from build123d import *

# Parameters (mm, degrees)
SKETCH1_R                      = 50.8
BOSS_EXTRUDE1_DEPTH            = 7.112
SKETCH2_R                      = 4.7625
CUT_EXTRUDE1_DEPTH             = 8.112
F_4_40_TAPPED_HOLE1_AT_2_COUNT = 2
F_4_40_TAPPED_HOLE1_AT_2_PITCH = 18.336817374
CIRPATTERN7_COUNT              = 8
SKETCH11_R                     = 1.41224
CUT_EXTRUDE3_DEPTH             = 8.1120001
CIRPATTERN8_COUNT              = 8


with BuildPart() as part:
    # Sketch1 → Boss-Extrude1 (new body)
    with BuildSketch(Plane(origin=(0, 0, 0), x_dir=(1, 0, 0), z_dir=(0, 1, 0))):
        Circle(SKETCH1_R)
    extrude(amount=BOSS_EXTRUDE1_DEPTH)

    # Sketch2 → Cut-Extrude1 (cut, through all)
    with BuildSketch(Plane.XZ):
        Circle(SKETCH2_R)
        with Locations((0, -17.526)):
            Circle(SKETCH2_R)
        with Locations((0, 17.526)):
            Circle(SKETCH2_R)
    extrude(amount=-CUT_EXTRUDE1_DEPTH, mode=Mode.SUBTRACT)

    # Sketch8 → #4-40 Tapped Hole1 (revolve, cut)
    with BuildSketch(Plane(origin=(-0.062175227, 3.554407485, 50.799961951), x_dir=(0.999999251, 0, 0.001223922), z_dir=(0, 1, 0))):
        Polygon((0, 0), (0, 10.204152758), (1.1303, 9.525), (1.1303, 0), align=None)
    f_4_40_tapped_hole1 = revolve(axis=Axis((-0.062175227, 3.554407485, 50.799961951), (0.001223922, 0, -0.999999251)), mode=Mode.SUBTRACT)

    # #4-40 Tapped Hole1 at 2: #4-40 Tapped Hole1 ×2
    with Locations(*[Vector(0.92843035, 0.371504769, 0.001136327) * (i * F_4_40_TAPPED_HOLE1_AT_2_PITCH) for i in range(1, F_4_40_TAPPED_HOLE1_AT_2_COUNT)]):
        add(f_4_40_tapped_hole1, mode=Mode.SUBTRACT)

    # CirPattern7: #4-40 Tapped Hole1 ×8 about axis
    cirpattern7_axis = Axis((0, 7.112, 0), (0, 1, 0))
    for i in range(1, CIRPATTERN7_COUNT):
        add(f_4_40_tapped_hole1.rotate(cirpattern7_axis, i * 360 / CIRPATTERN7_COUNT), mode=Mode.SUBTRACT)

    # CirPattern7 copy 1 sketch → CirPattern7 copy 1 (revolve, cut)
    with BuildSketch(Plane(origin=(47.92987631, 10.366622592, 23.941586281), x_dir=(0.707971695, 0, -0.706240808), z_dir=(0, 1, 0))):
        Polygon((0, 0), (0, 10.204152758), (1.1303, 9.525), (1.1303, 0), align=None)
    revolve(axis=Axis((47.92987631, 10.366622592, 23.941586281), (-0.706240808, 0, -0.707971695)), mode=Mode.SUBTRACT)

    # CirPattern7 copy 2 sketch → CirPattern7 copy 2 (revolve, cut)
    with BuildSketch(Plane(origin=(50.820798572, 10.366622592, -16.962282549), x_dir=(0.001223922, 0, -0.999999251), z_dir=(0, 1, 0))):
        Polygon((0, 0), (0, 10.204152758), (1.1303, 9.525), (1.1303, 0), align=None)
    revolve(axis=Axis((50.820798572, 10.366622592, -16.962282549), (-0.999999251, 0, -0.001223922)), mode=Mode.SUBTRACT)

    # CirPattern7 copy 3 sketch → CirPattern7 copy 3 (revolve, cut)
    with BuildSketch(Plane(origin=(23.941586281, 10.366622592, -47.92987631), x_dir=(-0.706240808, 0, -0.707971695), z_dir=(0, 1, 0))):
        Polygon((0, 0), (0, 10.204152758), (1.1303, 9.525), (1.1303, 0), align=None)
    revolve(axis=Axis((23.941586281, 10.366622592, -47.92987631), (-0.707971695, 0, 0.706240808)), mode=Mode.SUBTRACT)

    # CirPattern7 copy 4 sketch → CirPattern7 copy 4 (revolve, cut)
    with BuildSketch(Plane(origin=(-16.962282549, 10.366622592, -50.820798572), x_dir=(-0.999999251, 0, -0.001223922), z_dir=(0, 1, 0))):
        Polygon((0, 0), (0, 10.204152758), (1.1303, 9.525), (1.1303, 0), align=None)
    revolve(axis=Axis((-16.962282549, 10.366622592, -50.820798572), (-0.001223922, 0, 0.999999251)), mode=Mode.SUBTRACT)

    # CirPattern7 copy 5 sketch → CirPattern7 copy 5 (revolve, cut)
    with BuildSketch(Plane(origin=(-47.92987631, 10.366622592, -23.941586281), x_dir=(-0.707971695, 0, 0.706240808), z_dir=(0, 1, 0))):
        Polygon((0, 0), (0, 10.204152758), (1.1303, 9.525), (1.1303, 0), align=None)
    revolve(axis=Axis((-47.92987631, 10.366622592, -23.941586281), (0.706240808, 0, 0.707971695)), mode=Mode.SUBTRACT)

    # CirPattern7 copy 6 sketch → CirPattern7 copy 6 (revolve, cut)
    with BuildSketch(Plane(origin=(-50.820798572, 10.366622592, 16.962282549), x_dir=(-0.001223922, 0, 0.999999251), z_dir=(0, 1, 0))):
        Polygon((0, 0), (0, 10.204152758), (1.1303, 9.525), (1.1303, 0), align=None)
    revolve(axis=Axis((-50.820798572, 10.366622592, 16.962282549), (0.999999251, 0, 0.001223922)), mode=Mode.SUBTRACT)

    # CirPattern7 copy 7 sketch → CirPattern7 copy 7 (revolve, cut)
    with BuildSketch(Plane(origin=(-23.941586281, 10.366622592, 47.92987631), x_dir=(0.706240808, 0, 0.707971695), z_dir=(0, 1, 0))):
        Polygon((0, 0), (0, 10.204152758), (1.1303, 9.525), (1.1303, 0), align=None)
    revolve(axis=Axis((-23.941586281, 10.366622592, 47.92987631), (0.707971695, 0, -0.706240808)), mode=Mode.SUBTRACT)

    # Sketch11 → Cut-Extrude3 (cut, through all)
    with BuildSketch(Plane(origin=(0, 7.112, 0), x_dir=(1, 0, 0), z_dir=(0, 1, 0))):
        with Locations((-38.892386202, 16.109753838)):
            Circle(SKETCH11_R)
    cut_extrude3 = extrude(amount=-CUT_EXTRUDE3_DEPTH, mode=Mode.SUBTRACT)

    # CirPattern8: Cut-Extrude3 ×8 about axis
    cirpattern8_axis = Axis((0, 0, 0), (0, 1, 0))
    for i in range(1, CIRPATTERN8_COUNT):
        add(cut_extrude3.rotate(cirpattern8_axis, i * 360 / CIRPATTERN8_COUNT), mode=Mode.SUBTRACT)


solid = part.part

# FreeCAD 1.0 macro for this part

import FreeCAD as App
import Part
import Sketcher
Q = App.Units.Quantity

doc = App.newDocument("Part")
body = doc.addObject("PartDesign::Body", "Body")

# Sketch on XZ plane
sketch1 = doc.addObject("Sketcher::SketchObject", "Sketch")
body.addObject(sketch1)
sketch1.AttachmentSupport = (doc.XZ_Plane, [""])
sketch1.MapMode = "FlatFace"
sketch1.addGeometry(Part.Circle(App.Vector(0, 0, 0), App.Vector(0, 0, 1), 51), False)
sketch1.addConstraint([
    Sketcher.Constraint("Coincident", 0, 3, -1, 1),
    Sketcher.Constraint("Diameter", 0, Q("4 in")),
])
pad1 = doc.addObject("PartDesign::Pad", "Pad")
body.addObject(pad1)
pad1.Profile = sketch1
pad1.Length = Q("0.28 in")
pad1.Reversed = True

# Sketch on XZ plane
sketch2 = doc.addObject("Sketcher::SketchObject", "Sketch001")
body.addObject(sketch2)
sketch2.AttachmentSupport = (doc.XZ_Plane, [""])
sketch2.MapMode = "FlatFace"
sketch2.addGeometry([
    Part.Circle(App.Vector(0, 0, 0), App.Vector(0, 0, 1), 4.8),
    Part.Circle(App.Vector(0, -17.5, 0), App.Vector(0, 0, 1), 4.8),
    Part.Circle(App.Vector(0, 17.5, 0), App.Vector(0, 0, 1), 4.8),
], False)
sketch2.addConstraint([
    Sketcher.Constraint("Coincident", 0, 3, -1, 1),
    Sketcher.Constraint("Equal", 0, 1),
    Sketcher.Constraint("Equal", 1, 2),
    Sketcher.Constraint("Symmetric", 1, 3, 2, 3, -1, 1),
    Sketcher.Constraint("PointOnObject", 1, 3, -2),
    Sketcher.Constraint("Diameter", 0, Q("0.375 in")),
    Sketcher.Constraint("DistanceY", 1, 3, -1, 1, Q("0.69 in")),
])
pocket1 = doc.addObject("PartDesign::Pocket", "Pocket")
body.addObject(pocket1)
pocket1.Profile = sketch2
pocket1.Type = "ThroughAll"

# Sketch on XZ plane
sketch3 = doc.addObject("Sketcher::SketchObject", "Sketch002")
body.addObject(sketch3)
sketch3.AttachmentSupport = (doc.XZ_Plane, [""])
sketch3.MapMode = "FlatFace"
sketch3.AttachmentOffset = App.Placement(App.Vector(0, 0, -3.554407), App.Rotation())
sketch3.addGeometry([
    Part.LineSegment(App.Vector(0, 40.6, 0), App.Vector(-0.1, 50.8, 0)),
    Part.LineSegment(App.Vector(-0.1, 50.8, 0), App.Vector(1.1, 50.8, 0)),
    Part.LineSegment(App.Vector(1.1, 50.8, 0), App.Vector(1.1, 41.3, 0)),
    Part.LineSegment(App.Vector(1.1, 41.3, 0), App.Vector(0, 40.6, 0)),
], False)
sketch3.addGeometry(Part.LineSegment(App.Vector(-0.1, 50.8, 0), App.Vector(0, 40.6, 0)), True)  # axis
sketch3.addConstraint([
    Sketcher.Constraint("Coincident", 0, 2, 1, 1),
    Sketcher.Constraint("Coincident", 1, 2, 2, 1),
    Sketcher.Constraint("Coincident", 2, 2, 3, 1),
    Sketcher.Constraint("Coincident", 3, 2, 0, 1),
    Sketcher.Constraint("Coincident", 4, 1, 0, 2),
    Sketcher.Constraint("Coincident", 4, 2, 3, 2),
    Sketcher.Constraint("Perpendicular", 0, 1),
    Sketcher.Constraint("Perpendicular", 1, 2),
    Sketcher.Constraint("Distance", 2, Q("0.375 in")),
    Sketcher.Constraint("Distance", 1, Q("0.0445 in")),
    Sketcher.Constraint("DistanceY", -1, 1, 0, 2, Q("50.799962 mm")),
    Sketcher.Constraint("DistanceX", -1, 1, 2, 2, Q("1.079782 mm")),
    Sketcher.Constraint("DistanceY", 2, 2, 0, 2, Q("9.523609 mm")),
    Sketcher.Constraint("DistanceY", 3, 2, 1, 2, Q("10.205529 mm")),
])
groove = doc.addObject("PartDesign::Groove", "Groove")
body.addObject(groove)
groove.Profile = sketch3
groove.ReferenceAxis = (sketch3, ["Axis0"])
groove.Angle = 360
doc.recompute()

datumline = doc.addObject("PartDesign::Line", "DatumLine")
body.addObject(datumline)
datumline.Placement = App.Placement(App.Vector(0, 0, 0), App.Rotation(App.Vector(0, 0, 1), App.Vector(0.92843035, 0.371504769, 0.001136327)))
linearpattern = doc.addObject("PartDesign::LinearPattern", "LinearPattern")
body.addObject(linearpattern)
linearpattern.Originals = [groove]
linearpattern.Direction = (datumline, [""])
linearpattern.Mode = "offset"
linearpattern.Offset = 18.336817
linearpattern.Occurrences = 2
body.Tip = linearpattern
doc.recompute()

polarpattern = doc.addObject("PartDesign::PolarPattern", "PolarPattern")
body.addObject(polarpattern)
polarpattern.Originals = [groove]
polarpattern.Axis = (doc.Y_Axis, [""])
polarpattern.Angle = 360
polarpattern.Occurrences = 8
body.Tip = polarpattern

# Sketch on XZ plane
sketch4 = doc.addObject("Sketcher::SketchObject", "Sketch003")
body.addObject(sketch4)
sketch4.AttachmentSupport = (doc.XZ_Plane, [""])
sketch4.MapMode = "FlatFace"
sketch4.AttachmentOffset = App.Placement(App.Vector(0, 0, -10.366623), App.Rotation())
sketch4.addGeometry([
    Part.LineSegment(App.Vector(40.7, 16.7, 0), App.Vector(47.9, 23.9, 0)),
    Part.LineSegment(App.Vector(47.9, 23.9, 0), App.Vector(48.7, 23.1, 0)),
    Part.LineSegment(App.Vector(48.7, 23.1, 0), App.Vector(42, 16.4, 0)),
    Part.LineSegment(App.Vector(42, 16.4, 0), App.Vector(40.7, 16.7, 0)),
], False)
sketch4.addGeometry(Part.LineSegment(App.Vector(47.9, 23.9, 0), App.Vector(40.7, 16.7, 0)), True)  # axis
sketch4.addConstraint([
    Sketcher.Constraint("Coincident", 0, 2, 1, 1),
    Sketcher.Constraint("Coincident", 1, 2, 2, 1),
    Sketcher.Constraint("Coincident", 2, 2, 3, 1),
    Sketcher.Constraint("Coincident", 3, 2, 0, 1),
    Sketcher.Constraint("Coincident", 4, 1, 0, 2),
    Sketcher.Constraint("Coincident", 4, 2, 3, 2),
    Sketcher.Constraint("Perpendicular", 0, 1),
    Sketcher.Constraint("Perpendicular", 1, 2),
    Sketcher.Constraint("Distance", 2, Q("0.375 in")),
    Sketcher.Constraint("Distance", 1, Q("0.0445 in")),
    Sketcher.Constraint("DistanceY", -1, 1, 2, 2, Q("16.399892 mm")),
    Sketcher.Constraint("DistanceX", 0, 2, 1, 2, Q("0.80022 mm")),
    Sketcher.Constraint("DistanceX", 3, 2, 0, 2, Q("7.206589 mm")),
    Sketcher.Constraint("DistanceX", -1, 1, 0, 2, Q("47.929876 mm")),
])
groove2 = doc.addObject("PartDesign::Groove", "Groove001")
body.addObject(groove2)
groove2.Profile = sketch4
groove2.ReferenceAxis = (sketch4, ["Axis0"])
groove2.Angle = 360

# Sketch on XZ plane
sketch5 = doc.addObject("Sketcher::SketchObject", "Sketch004")
body.addObject(sketch5)
sketch5.AttachmentSupport = (doc.XZ_Plane, [""])
sketch5.MapMode = "FlatFace"
sketch5.AttachmentOffset = App.Placement(App.Vector(0, 0, -10.366623), App.Rotation())
sketch5.addGeometry([
    Part.LineSegment(App.Vector(40.6, -17, 0), App.Vector(50.8, -17, 0)),
    Part.LineSegment(App.Vector(50.8, -17, 0), App.Vector(50.8, -18.1, 0)),
    Part.LineSegment(App.Vector(50.8, -18.1, 0), App.Vector(41.3, -18.1, 0)),
    Part.LineSegment(App.Vector(41.3, -18.1, 0), App.Vector(40.6, -17, 0)),
], False)
sketch5.addGeometry(Part.LineSegment(App.Vector(50.8, -17, 0), App.Vector(40.6, -17, 0)), True)  # axis
sketch5.addConstraint([
    Sketcher.Constraint("Coincident", 0, 2, 1, 1),
    Sketcher.Constraint("Coincident", 1, 2, 2, 1),
    Sketcher.Constraint("Coincident", 2, 2, 3, 1),
    Sketcher.Constraint("Coincident", 3, 2, 0, 1),
    Sketcher.Constraint("Coincident", 4, 1, 0, 2),
    Sketcher.Constraint("Coincident", 4, 2, 3, 2),
    Sketcher.Constraint("Perpendicular", 0, 1),
    Sketcher.Constraint("Perpendicular", 1, 2),
    Sketcher.Constraint("Distance", 2, Q("0.375 in")),
    Sketcher.Constraint("Distance", 1, Q("0.0445 in")),
    Sketcher.Constraint("DistanceX", -1, 1, 0, 2, Q("50.820799 mm")),
    Sketcher.Constraint("DistanceX", -1, 1, 1, 2, Q("50.822182 mm")),
    Sketcher.Constraint("DistanceY", 1, 2, -1, 1, Q("18.092582 mm")),
    Sketcher.Constraint("DistanceX", 3, 2, 1, 2, Q("10.205529 mm")),
])
groove3 = doc.addObject("PartDesign::Groove", "Groove002")
body.addObject(groove3)
groove3.Profile = sketch5
groove3.ReferenceAxis = (sketch5, ["Axis0"])
groove3.Angle = 360

# Sketch on XZ plane
sketch6 = doc.addObject("Sketcher::SketchObject", "Sketch005")
body.addObject(sketch6)
sketch6.AttachmentSupport = (doc.XZ_Plane, [""])
sketch6.MapMode = "FlatFace"
sketch6.AttachmentOffset = App.Placement(App.Vector(0, 0, -10.366623), App.Rotation())
sketch6.addGeometry([
    Part.LineSegment(App.Vector(16.7, -40.7, 0), App.Vector(23.9, -47.9, 0)),
    Part.LineSegment(App.Vector(23.9, -47.9, 0), App.Vector(23.1, -48.7, 0)),
    Part.LineSegment(App.Vector(23.1, -48.7, 0), App.Vector(16.4, -42, 0)),
    Part.LineSegment(App.Vector(16.4, -42, 0), App.Vector(16.7, -40.7, 0)),
], False)
sketch6.addGeometry(Part.LineSegment(App.Vector(23.9, -47.9, 0), App.Vector(16.7, -40.7, 0)), True)  # axis
sketch6.addConstraint([
    Sketcher.Constraint("Coincident", 0, 2, 1, 1),
    Sketcher.Constraint("Coincident", 1, 2, 2, 1),
    Sketcher.Constraint("Coincident", 2, 2, 3, 1),
    Sketcher.Constraint("Coincident", 3, 2, 0, 1),
    Sketcher.Constraint("Coincident", 4, 1, 0, 2),
    Sketcher.Constraint("Coincident", 4, 2, 3, 2),
    Sketcher.Constraint("Perpendicular", 0, 1),
    Sketcher.Constraint("Perpendicular", 1, 2),
    Sketcher.Constraint("Distance", 2, Q("0.375 in")),
    Sketcher.Constraint("Distance", 1, Q("0.0445 in")),
    Sketcher.Constraint("DistanceX", -1, 1, 2, 2, Q("16.399892 mm")),
    Sketcher.Constraint("DistanceY", 1, 2, 0, 2, Q("0.80022 mm")),
    Sketcher.Constraint("DistanceX", 3, 2, 0, 2, Q("7.224251 mm")),
    Sketcher.Constraint("DistanceY", 0, 2, -1, 1, Q("47.929876 mm")),
])
groove4 = doc.addObject("PartDesign::Groove", "Groove003")
body.addObject(groove4)
groove4.Profile = sketch6
groove4.ReferenceAxis = (sketch6, ["Axis0"])
groove4.Angle = 360

# Sketch on XZ plane
sketch7 = doc.addObject("Sketcher::SketchObject", "Sketch006")
body.addObject(sketch7)
sketch7.AttachmentSupport = (doc.XZ_Plane, [""])
sketch7.MapMode = "FlatFace"
sketch7.AttachmentOffset = App.Placement(App.Vector(0, 0, -10.366623), App.Rotation())
sketch7.addGeometry([
    Part.LineSegment(App.Vector(-17, -40.6, 0), App.Vector(-17, -50.8, 0)),
    Part.LineSegment(App.Vector(-17, -50.8, 0), App.Vector(-18.1, -50.8, 0)),
    Part.LineSegment(App.Vector(-18.1, -50.8, 0), App.Vector(-18.1, -41.3, 0)),
    Part.LineSegment(App.Vector(-18.1, -41.3, 0), App.Vector(-17, -40.6, 0)),
], False)
sketch7.addGeometry(Part.LineSegment(App.Vector(-17, -50.8, 0), App.Vector(-17, -40.6, 0)), True)  # axis
sketch7.addConstraint([
    Sketcher.Constraint("Coincident", 0, 2, 1, 1),
    Sketcher.Constraint("Coincident", 1, 2, 2, 1),
    Sketcher.Constraint("Coincident", 2, 2, 3, 1),
    Sketcher.Constraint("Coincident", 3, 2, 0, 1),
    Sketcher.Constraint("Coincident", 4, 1, 0, 2),
    Sketcher.Constraint("Coincident", 4, 2, 3, 2),
    Sketcher.Constraint("Perpendicular", 0, 1),
    Sketcher.Constraint("Perpendicular", 1, 2),
    Sketcher.Constraint("Distance", 2, Q("0.375 in")),
    Sketcher.Constraint("Distance", 1, Q("0.0445 in")),
    Sketcher.Constraint("DistanceY", 0, 2, -1, 1, Q("50.820799 mm")),
    Sketcher.Constraint("DistanceX", 1, 2, -1, 1, Q("18.092582 mm")),
    Sketcher.Constraint("DistanceY", 1, 2, -1, 1, Q("50.822182 mm")),
    Sketcher.Constraint("DistanceY", 1, 2, 3, 2, Q("10.205529 mm")),
])
groove5 = doc.addObject("PartDesign::Groove", "Groove004")
body.addObject(groove5)
groove5.Profile = sketch7
groove5.ReferenceAxis = (sketch7, ["Axis0"])
groove5.Angle = 360

# Sketch on XZ plane
sketch8 = doc.addObject("Sketcher::SketchObject", "Sketch007")
body.addObject(sketch8)
sketch8.AttachmentSupport = (doc.XZ_Plane, [""])
sketch8.MapMode = "FlatFace"
sketch8.AttachmentOffset = App.Placement(App.Vector(0, 0, -10.366623), App.Rotation())
sketch8.addGeometry([
    Part.LineSegment(App.Vector(-40.7, -16.7, 0), App.Vector(-47.9, -23.9, 0)),
    Part.LineSegment(App.Vector(-47.9, -23.9, 0), App.Vector(-48.7, -23.1, 0)),
    Part.LineSegment(App.Vector(-48.7, -23.1, 0), App.Vector(-42, -16.4, 0)),
    Part.LineSegment(App.Vector(-42, -16.4, 0), App.Vector(-40.7, -16.7, 0)),
], False)
sketch8.addGeometry(Part.LineSegment(App.Vector(-47.9, -23.9, 0), App.Vector(-40.7, -16.7, 0)), True)  # axis
sketch8.addConstraint([
    Sketcher.Constraint("Coincident", 0, 2, 1, 1),
    Sketcher.Constraint("Coincident", 1, 2, 2, 1),
    Sketcher.Constraint("Coincident", 2, 2, 3, 1),
    Sketcher.Constraint("Coincident", 3, 2, 0, 1),
    Sketcher.Constraint("Coincident", 4, 1, 0, 2),
    Sketcher.Constraint("Coincident", 4, 2, 3, 2),
    Sketcher.Constraint("Perpendicular", 0, 1),
    Sketcher.Constraint("Perpendicular", 1, 2),
    Sketcher.Constraint("Distance", 2, Q("0.375 in")),
    Sketcher.Constraint("Distance", 1, Q("0.0445 in")),
    Sketcher.Constraint("DistanceY", 2, 2, -1, 1, Q("16.399892 mm")),
    Sketcher.Constraint("DistanceX", 1, 2, 0, 2, Q("0.80022 mm")),
    Sketcher.Constraint("DistanceX", 0, 2, 3, 2, Q("7.206589 mm")),
    Sketcher.Constraint("DistanceX", 0, 2, -1, 1, Q("47.929876 mm")),
])
groove6 = doc.addObject("PartDesign::Groove", "Groove005")
body.addObject(groove6)
groove6.Profile = sketch8
groove6.ReferenceAxis = (sketch8, ["Axis0"])
groove6.Angle = 360

# Sketch on XZ plane
sketch9 = doc.addObject("Sketcher::SketchObject", "Sketch008")
body.addObject(sketch9)
sketch9.AttachmentSupport = (doc.XZ_Plane, [""])
sketch9.MapMode = "FlatFace"
sketch9.AttachmentOffset = App.Placement(App.Vector(0, 0, -10.366623), App.Rotation())
sketch9.addGeometry([
    Part.LineSegment(App.Vector(-40.6, 17, 0), App.Vector(-50.8, 17, 0)),
    Part.LineSegment(App.Vector(-50.8, 17, 0), App.Vector(-50.8, 18.1, 0)),
    Part.LineSegment(App.Vector(-50.8, 18.1, 0), App.Vector(-41.3, 18.1, 0)),
    Part.LineSegment(App.Vector(-41.3, 18.1, 0), App.Vector(-40.6, 17, 0)),
], False)
sketch9.addGeometry(Part.LineSegment(App.Vector(-50.8, 17, 0), App.Vector(-40.6, 17, 0)), True)  # axis
sketch9.addConstraint([
    Sketcher.Constraint("Coincident", 0, 2, 1, 1),
    Sketcher.Constraint("Coincident", 1, 2, 2, 1),
    Sketcher.Constraint("Coincident", 2, 2, 3, 1),
    Sketcher.Constraint("Coincident", 3, 2, 0, 1),
    Sketcher.Constraint("Coincident", 4, 1, 0, 2),
    Sketcher.Constraint("Coincident", 4, 2, 3, 2),
    Sketcher.Constraint("Perpendicular", 0, 1),
    Sketcher.Constraint("Perpendicular", 1, 2),
    Sketcher.Constraint("Distance", 2, Q("0.375 in")),
    Sketcher.Constraint("Distance", 1, Q("0.0445 in")),
    Sketcher.Constraint("DistanceX", 0, 2, -1, 1, Q("50.820799 mm")),
    Sketcher.Constraint("DistanceX", 1, 2, -1, 1, Q("50.822182 mm")),
    Sketcher.Constraint("DistanceY", -1, 1, 1, 2, Q("18.092582 mm")),
    Sketcher.Constraint("DistanceX", 1, 2, 3, 2, Q("10.205529 mm")),
])
groove7 = doc.addObject("PartDesign::Groove", "Groove006")
body.addObject(groove7)
groove7.Profile = sketch9
groove7.ReferenceAxis = (sketch9, ["Axis0"])
groove7.Angle = 360

# Sketch on XZ plane
sketch10 = doc.addObject("Sketcher::SketchObject", "Sketch009")
body.addObject(sketch10)
sketch10.AttachmentSupport = (doc.XZ_Plane, [""])
sketch10.MapMode = "FlatFace"
sketch10.AttachmentOffset = App.Placement(App.Vector(0, 0, -10.366623), App.Rotation())
sketch10.addGeometry([
    Part.LineSegment(App.Vector(-16.7, 40.7, 0), App.Vector(-23.9, 47.9, 0)),
    Part.LineSegment(App.Vector(-23.9, 47.9, 0), App.Vector(-23.1, 48.7, 0)),
    Part.LineSegment(App.Vector(-23.1, 48.7, 0), App.Vector(-16.4, 42, 0)),
    Part.LineSegment(App.Vector(-16.4, 42, 0), App.Vector(-16.7, 40.7, 0)),
], False)
sketch10.addGeometry(Part.LineSegment(App.Vector(-23.9, 47.9, 0), App.Vector(-16.7, 40.7, 0)), True)  # axis
sketch10.addConstraint([
    Sketcher.Constraint("Coincident", 0, 2, 1, 1),
    Sketcher.Constraint("Coincident", 1, 2, 2, 1),
    Sketcher.Constraint("Coincident", 2, 2, 3, 1),
    Sketcher.Constraint("Coincident", 3, 2, 0, 1),
    Sketcher.Constraint("Coincident", 4, 1, 0, 2),
    Sketcher.Constraint("Coincident", 4, 2, 3, 2),
    Sketcher.Constraint("Perpendicular", 0, 1),
    Sketcher.Constraint("Perpendicular", 1, 2),
    Sketcher.Constraint("Distance", 2, Q("0.375 in")),
    Sketcher.Constraint("Distance", 1, Q("0.0445 in")),
    Sketcher.Constraint("DistanceX", 2, 2, -1, 1, Q("16.399892 mm")),
    Sketcher.Constraint("DistanceY", 0, 2, 1, 2, Q("0.80022 mm")),
    Sketcher.Constraint("DistanceX", 0, 2, 3, 2, Q("7.224251 mm")),
    Sketcher.Constraint("DistanceY", -1, 1, 0, 2, Q("47.929876 mm")),
])
groove8 = doc.addObject("PartDesign::Groove", "Groove007")
body.addObject(groove8)
groove8.Profile = sketch10
groove8.ReferenceAxis = (sketch10, ["Axis0"])
groove8.Angle = 360

# Sketch on XZ plane
sketch11 = doc.addObject("Sketcher::SketchObject", "Sketch010")
body.addObject(sketch11)
sketch11.AttachmentSupport = (doc.XZ_Plane, [""])
sketch11.MapMode = "FlatFace"
sketch11.AttachmentOffset = App.Placement(App.Vector(0, 0, -0.28 * 25.4), App.Rotation())
sketch11.addGeometry(Part.Circle(App.Vector(-38.9, -16.1, 0), App.Vector(0, 0, 1), 1.4), False)
sketch11.addConstraint([
    Sketcher.Constraint("Diameter", 0, Q("0.1112 in")),
    Sketcher.Constraint("DistanceX", 0, 3, -1, 1, Q("38.892386 mm")),
    Sketcher.Constraint("DistanceY", 0, 3, -1, 1, Q("16.109754 mm")),
])
pocket2 = doc.addObject("PartDesign::Pocket", "Pocket001")
body.addObject(pocket2)
pocket2.Profile = sketch11
pocket2.Type = "ThroughAll"
pocket2.Reversed = True
doc.recompute()

polarpattern2 = doc.addObject("PartDesign::PolarPattern", "PolarPattern001")
body.addObject(polarpattern2)
polarpattern2.Originals = [pocket2]
polarpattern2.Axis = (doc.Y_Axis, [""])
polarpattern2.Angle = 360
polarpattern2.Occurrences = 8
body.Tip = polarpattern2

doc.recompute()
